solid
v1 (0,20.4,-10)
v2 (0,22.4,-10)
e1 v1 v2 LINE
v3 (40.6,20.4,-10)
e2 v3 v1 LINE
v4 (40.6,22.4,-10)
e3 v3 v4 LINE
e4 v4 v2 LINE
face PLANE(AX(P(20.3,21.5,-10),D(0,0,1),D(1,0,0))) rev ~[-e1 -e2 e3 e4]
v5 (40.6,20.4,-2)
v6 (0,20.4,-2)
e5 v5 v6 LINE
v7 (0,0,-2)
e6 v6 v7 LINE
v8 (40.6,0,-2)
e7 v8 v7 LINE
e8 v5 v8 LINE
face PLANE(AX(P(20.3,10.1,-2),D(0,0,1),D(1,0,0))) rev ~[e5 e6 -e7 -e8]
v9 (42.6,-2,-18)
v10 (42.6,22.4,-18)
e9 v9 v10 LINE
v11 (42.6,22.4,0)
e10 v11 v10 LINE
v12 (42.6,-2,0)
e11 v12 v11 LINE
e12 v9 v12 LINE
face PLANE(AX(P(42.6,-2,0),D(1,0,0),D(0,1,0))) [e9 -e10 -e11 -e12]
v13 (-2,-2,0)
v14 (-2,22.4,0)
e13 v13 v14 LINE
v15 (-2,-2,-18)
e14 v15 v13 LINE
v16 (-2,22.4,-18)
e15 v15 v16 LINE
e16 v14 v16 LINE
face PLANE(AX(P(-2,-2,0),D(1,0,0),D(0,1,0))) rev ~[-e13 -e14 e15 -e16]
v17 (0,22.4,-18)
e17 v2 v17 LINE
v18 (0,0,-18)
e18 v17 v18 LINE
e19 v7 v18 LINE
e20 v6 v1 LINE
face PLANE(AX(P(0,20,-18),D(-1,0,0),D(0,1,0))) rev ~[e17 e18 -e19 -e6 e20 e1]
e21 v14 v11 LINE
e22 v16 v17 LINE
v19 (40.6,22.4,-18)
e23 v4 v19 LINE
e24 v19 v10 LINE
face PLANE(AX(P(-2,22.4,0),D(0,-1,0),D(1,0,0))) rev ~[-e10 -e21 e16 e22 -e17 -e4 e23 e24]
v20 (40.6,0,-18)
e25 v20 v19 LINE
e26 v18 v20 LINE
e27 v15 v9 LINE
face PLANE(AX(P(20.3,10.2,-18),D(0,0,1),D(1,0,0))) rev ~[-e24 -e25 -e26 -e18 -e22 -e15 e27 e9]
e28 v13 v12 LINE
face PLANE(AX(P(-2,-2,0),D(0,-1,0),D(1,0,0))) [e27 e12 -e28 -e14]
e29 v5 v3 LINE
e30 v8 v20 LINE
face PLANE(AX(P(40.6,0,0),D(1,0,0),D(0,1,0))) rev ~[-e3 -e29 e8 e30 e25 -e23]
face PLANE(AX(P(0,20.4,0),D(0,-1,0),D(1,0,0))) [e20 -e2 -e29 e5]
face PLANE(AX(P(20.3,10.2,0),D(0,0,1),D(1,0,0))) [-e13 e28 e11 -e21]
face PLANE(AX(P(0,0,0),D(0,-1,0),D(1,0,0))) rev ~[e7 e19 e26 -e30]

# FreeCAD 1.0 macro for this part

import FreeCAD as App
import Part
import Sketcher

V = App.Vector

doc = App.newDocument("Part")
body = doc.addObject("PartDesign::Body", "Body")

# Sketch on XY plane
sketch1 = doc.addObject("Sketcher::SketchObject", "Sketch")
body.addObject(sketch1)
sketch1.AttachmentSupport = (doc.XY_Plane, [""])
sketch1.MapMode = "FlatFace"
sketch1.addGeometry([
    Part.LineSegment(V(-2, 22, 0), V(-2, -2, 0)),  # 0
    Part.LineSegment(V(-2, -2, 0), V(43, -2, 0)),  # 1
    Part.LineSegment(V(43, -2, 0), V(43, 22, 0)),  # 2
    Part.LineSegment(V(43, 22, 0), V(-2, 22, 0)),  # 3
    Part.LineSegment(V(41, 0, 0), V(0, 0, 0)),  # 4
    Part.LineSegment(V(0, 0, 0), V(0, 20, 0)),  # 5
    Part.LineSegment(V(0, 20, 0), V(41, 20, 0)),  # 6
    Part.LineSegment(V(41, 20, 0), V(41, 0, 0)),  # 7
], False)
sketch1.addConstraint([
    Sketcher.Constraint("Coincident", 0, 2, 1, 1),
    Sketcher.Constraint("Coincident", 1, 2, 2, 1),
    Sketcher.Constraint("Coincident", 2, 2, 3, 1),
    Sketcher.Constraint("Coincident", 3, 2, 0, 1),
    Sketcher.Constraint("Coincident", 4, 2, 5, 1),
    Sketcher.Constraint("Coincident", 5, 2, 6, 1),
    Sketcher.Constraint("Coincident", 6, 2, 7, 1),
    Sketcher.Constraint("Coincident", 7, 2, 4, 1),
    Sketcher.Constraint("Vertical", 0),
    Sketcher.Constraint("Horizontal", 1),
    Sketcher.Constraint("Vertical", 2),
    Sketcher.Constraint("Horizontal", 3),
    Sketcher.Constraint("Horizontal", 4),
    Sketcher.Constraint("Vertical", 5),
    Sketcher.Constraint("Horizontal", 6),
    Sketcher.Constraint("Vertical", 7),
    Sketcher.Constraint("Coincident", 4, 2, -1, 1),
    Sketcher.Constraint("DistanceX", 1, 1, 1, 2, 44.6),
    Sketcher.Constraint("DistanceX", 4, 2, 4, 1, 40.6),
    Sketcher.Constraint("DistanceY", 0, 2, 0, 1, 24.4),
    Sketcher.Constraint("DistanceY", 5, 1, 5, 2, 20.4),
    Sketcher.Constraint("DistanceX", 0, 2, -1, 1, 2.0),
    Sketcher.Constraint("DistanceY", 0, 2, -1, 1, 2.0),
])
pad1 = doc.addObject("PartDesign::Pad", "Pad")
body.addObject(pad1)
pad1.Profile = sketch1
pad1.Length = 18
pad1.Reversed = True

# Sketch on XY plane
sketch2 = doc.addObject("Sketcher::SketchObject", "Sketch001")
body.addObject(sketch2)
sketch2.AttachmentSupport = (doc.XY_Plane, [""])
sketch2.MapMode = "FlatFace"
sketch2.AttachmentOffset = App.Placement(V(0, 0, -2), App.Rotation())
sketch2.addGeometry([
    Part.LineSegment(V(-2, 22, 0), V(-2, -2, 0)),
    Part.LineSegment(V(-2, -2, 0), V(43, -2, 0)),
    Part.LineSegment(V(43, -2, 0), V(43, 22, 0)),
    Part.LineSegment(V(43, 22, 0), V(-2, 22, 0)),
], False)
sketch2.addConstraint([
    Sketcher.Constraint("Coincident", 0, 2, 1, 1),
    Sketcher.Constraint("Coincident", 1, 2, 2, 1),
    Sketcher.Constraint("Coincident", 2, 2, 3, 1),
    Sketcher.Constraint("Coincident", 3, 2, 0, 1),
    Sketcher.Constraint("Vertical", 0),
    Sketcher.Constraint("Horizontal", 1),
    Sketcher.Constraint("Vertical", 2),
    Sketcher.Constraint("Horizontal", 3),
    Sketcher.Constraint("DistanceX", 1, 1, 1, 2, 44.6),
    Sketcher.Constraint("DistanceY", 0, 2, 0, 1, 24.2),
    Sketcher.Constraint("DistanceX", 0, 2, -1, 1, 2.0),
    Sketcher.Constraint("DistanceY", 0, 2, -1, 1, 2.0),
])
pad2 = doc.addObject("PartDesign::Pad", "Pad001")
body.addObject(pad2)
pad2.Profile = sketch2
pad2.Length = 2

# Sketch on XY plane
sketch3 = doc.addObject("Sketcher::SketchObject", "Sketch002")
body.addObject(sketch3)
sketch3.AttachmentSupport = (doc.XY_Plane, [""])
sketch3.MapMode = "FlatFace"
sketch3.AttachmentOffset = App.Placement(V(0, 0, -18), App.Rotation())
sketch3.addGeometry([
    Part.LineSegment(V(0, 23, 0), V(0, 20, 0)),
    Part.LineSegment(V(0, 20, 0), V(40.6, 20, 0)),
    Part.LineSegment(V(40.6, 20, 0), V(40.6, 23, 0)),
    Part.LineSegment(V(40.6, 23, 0), V(0, 23, 0)),
], False)
sketch3.addConstraint([
    Sketcher.Constraint("Coincident", 0, 2, 1, 1),
    Sketcher.Constraint("Coincident", 1, 2, 2, 1),
    Sketcher.Constraint("Coincident", 2, 2, 3, 1),
    Sketcher.Constraint("Coincident", 3, 2, 0, 1),
    Sketcher.Constraint("Vertical", 0),
    Sketcher.Constraint("Horizontal", 1),
    Sketcher.Constraint("Vertical", 2),
    Sketcher.Constraint("Horizontal", 3),
    Sketcher.Constraint("PointOnObject", 0, 2, -2),
    Sketcher.Constraint("DistanceY", 0, 2, 0, 1, 3.0),
    Sketcher.Constraint("DistanceX", 1, 1, 1, 2, 40.6),
    Sketcher.Constraint("DistanceY", -1, 1, 0, 2, 20.0),
])
pocket1 = doc.addObject("PartDesign::Pocket", "Pocket")
body.addObject(pocket1)
pocket1.Profile = sketch3
pocket1.Length = 8
pocket1.Reversed = True

doc.recompute()
